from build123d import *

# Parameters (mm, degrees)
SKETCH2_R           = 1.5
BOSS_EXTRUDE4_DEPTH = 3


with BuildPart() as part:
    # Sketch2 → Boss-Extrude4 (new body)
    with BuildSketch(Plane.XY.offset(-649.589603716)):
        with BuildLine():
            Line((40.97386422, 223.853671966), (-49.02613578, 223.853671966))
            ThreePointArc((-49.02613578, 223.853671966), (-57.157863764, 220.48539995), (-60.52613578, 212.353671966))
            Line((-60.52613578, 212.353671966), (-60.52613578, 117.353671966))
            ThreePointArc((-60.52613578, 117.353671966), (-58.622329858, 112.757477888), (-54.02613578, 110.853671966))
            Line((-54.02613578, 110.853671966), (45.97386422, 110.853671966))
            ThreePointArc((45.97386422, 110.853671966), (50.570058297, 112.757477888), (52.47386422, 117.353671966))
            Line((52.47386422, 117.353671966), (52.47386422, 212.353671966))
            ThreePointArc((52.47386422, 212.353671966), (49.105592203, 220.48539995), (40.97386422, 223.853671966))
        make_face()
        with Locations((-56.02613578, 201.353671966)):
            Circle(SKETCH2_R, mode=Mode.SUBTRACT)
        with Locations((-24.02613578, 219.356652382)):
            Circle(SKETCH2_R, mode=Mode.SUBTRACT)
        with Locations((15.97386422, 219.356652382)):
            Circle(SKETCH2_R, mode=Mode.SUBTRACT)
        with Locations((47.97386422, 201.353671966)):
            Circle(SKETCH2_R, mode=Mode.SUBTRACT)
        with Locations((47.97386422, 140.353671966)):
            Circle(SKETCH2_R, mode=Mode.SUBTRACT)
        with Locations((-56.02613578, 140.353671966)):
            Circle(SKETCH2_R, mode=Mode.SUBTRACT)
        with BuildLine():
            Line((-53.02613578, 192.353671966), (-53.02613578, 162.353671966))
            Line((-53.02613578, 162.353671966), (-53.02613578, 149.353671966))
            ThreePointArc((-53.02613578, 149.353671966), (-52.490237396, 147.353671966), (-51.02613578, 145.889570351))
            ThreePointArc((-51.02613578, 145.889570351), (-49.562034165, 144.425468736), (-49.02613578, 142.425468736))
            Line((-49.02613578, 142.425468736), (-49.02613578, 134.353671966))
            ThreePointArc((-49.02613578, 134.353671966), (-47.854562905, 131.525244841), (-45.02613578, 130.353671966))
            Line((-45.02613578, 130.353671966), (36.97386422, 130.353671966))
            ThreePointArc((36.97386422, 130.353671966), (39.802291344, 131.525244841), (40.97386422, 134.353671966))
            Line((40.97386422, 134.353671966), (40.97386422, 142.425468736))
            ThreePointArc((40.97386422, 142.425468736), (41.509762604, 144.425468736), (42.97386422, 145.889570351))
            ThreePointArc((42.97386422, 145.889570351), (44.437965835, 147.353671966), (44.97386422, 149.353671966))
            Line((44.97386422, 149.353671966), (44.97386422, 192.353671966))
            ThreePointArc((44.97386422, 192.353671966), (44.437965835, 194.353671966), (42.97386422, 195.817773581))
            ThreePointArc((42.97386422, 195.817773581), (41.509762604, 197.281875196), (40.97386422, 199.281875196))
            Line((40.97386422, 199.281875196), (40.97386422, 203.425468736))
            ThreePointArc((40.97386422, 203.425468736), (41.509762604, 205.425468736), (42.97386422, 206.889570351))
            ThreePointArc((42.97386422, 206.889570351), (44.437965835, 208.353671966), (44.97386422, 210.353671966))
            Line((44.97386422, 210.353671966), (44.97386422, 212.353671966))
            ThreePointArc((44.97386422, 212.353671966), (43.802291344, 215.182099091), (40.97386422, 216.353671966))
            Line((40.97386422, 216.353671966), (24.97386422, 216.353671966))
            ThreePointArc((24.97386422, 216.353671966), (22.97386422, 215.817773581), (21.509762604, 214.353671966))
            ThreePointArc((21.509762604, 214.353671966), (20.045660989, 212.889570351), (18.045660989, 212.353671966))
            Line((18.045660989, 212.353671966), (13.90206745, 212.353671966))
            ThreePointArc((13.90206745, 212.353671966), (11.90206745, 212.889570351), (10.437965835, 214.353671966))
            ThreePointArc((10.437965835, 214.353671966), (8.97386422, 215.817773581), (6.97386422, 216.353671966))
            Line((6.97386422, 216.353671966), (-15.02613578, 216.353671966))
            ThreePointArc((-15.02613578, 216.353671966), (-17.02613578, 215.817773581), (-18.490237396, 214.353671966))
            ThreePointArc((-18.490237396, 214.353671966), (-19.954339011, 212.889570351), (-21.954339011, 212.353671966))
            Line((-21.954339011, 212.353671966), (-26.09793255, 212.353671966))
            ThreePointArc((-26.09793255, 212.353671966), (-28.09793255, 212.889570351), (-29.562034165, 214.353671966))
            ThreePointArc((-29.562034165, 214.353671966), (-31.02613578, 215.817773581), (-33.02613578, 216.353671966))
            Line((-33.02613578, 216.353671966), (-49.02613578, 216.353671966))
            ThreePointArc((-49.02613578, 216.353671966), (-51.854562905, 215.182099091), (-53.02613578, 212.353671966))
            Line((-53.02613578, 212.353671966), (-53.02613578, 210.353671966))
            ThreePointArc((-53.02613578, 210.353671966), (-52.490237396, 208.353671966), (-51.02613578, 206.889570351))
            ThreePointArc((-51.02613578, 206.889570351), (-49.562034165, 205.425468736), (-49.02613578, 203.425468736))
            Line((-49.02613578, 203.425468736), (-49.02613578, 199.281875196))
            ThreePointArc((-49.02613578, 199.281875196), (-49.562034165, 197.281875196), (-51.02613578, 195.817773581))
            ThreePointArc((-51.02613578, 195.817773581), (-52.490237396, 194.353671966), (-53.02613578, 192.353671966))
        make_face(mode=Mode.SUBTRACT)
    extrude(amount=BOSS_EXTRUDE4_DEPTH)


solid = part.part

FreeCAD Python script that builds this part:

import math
import FreeCAD as App
import Part
import Sketcher
from FreeCAD import Vector

doc = App.newDocument("Part")
body = doc.addObject("PartDesign::Body", "Body")

# Sketch on XY plane
sketch1 = doc.addObject("Sketcher::SketchObject", "Sketch")
body.addObject(sketch1)
sketch1.AttachmentSupport = (doc.XY_Plane, [""])
sketch1.MapMode = "FlatFace"
sketch1.AttachmentOffset = App.Placement(Vector(0, 0, -649.589604), App.Rotation())
sketch1.addGeometry(Part.LineSegment(Vector(41, 223.9, 0), Vector(-49, 223.9, 0)), False)
sketch1.addGeometry(Part.ArcOfCircle(Part.Circle(Vector(-49, 212.4, 0), Vector(0, 0, 1), 11.5), math.radians(90), math.radians(180)), False)
sketch1.addGeometry(Part.LineSegment(Vector(-60.5, 212.4, 0), Vector(-60.5, 117.4, 0)), False)
sketch1.addGeometry(Part.ArcOfCircle(Part.Circle(Vector(-54, 117.4, 0), Vector(0, 0, 1), 6.5), math.radians(180), math.radians(270)), False)
sketch1.addGeometry(Part.LineSegment(Vector(-54, 110.9, 0), Vector(46, 110.9, 0)), False)
sketch1.addGeometry(Part.ArcOfCircle(Part.Circle(Vector(46, 117.4, 0), Vector(0, 0, 1), 6.5), math.radians(-90), math.radians(0)), False)
sketch1.addGeometry(Part.LineSegment(Vector(52.5, 117.4, 0), Vector(52.5, 212.4, 0)), False)
sketch1.addGeometry(Part.ArcOfCircle(Part.Circle(Vector(41, 212.4, 0), Vector(0, 0, 1), 11.5), math.radians(0), math.radians(90)), False)
sketch1.addGeometry(Part.Circle(Vector(-56, 140.4, 0), Vector(0, 0, 1), 1.5), False)
sketch1.addGeometry(Part.LineSegment(Vector(-53, 149.4, 0), Vector(-53, 192.4, 0)), False)
sketch1.addGeometry(Part.ArcOfCircle(Part.Circle(Vector(-49, 192.4, 0), Vector(0, 0, 1), 4), math.radians(120), math.radians(180)), False)
sketch1.addGeometry(Part.ArcOfCircle(Part.Circle(Vector(-53, 199.3, 0), Vector(0, 0, 1), 4), math.radians(-60), math.radians(0)), False)
sketch1.addGeometry(Part.LineSegment(Vector(-49, 199.3, 0), Vector(-49, 203.4, 0)), False)
sketch1.addGeometry(Part.ArcOfCircle(Part.Circle(Vector(-53, 203.4, 0), Vector(0, 0, 1), 4), math.radians(0), math.radians(60)), False)
sketch1.addGeometry(Part.ArcOfCircle(Part.Circle(Vector(-49, 210.4, 0), Vector(0, 0, 1), 4), math.radians(180), math.radians(240)), False)
sketch1.addGeometry(Part.LineSegment(Vector(-53, 210.4, 0), Vector(-53, 212.4, 0)), False)
sketch1.addGeometry(Part.ArcOfCircle(Part.Circle(Vector(-49, 212.4, 0), Vector(0, 0, 1), 4), math.radians(90), math.radians(180)), False)
sketch1.addGeometry(Part.LineSegment(Vector(-49, 216.4, 0), Vector(-33, 216.4, 0)), False)
sketch1.addGeometry(Part.ArcOfCircle(Part.Circle(Vector(-33, 212.4, 0), Vector(0, 0, 1), 4), math.radians(30), math.radians(90)), False)
sketch1.addGeometry(Part.ArcOfCircle(Part.Circle(Vector(-26.1, 216.4, 0), Vector(0, 0, 1), 4), math.radians(-150), math.radians(-90)), False)
sketch1.addGeometry(Part.LineSegment(Vector(-26.1, 212.4, 0), Vector(-22, 212.4, 0)), False)
sketch1.addGeometry(Part.ArcOfCircle(Part.Circle(Vector(-22, 216.4, 0), Vector(0, 0, 1), 4), math.radians(-90), math.radians(-30)), False)
sketch1.addGeometry(Part.ArcOfCircle(Part.Circle(Vector(-15, 212.4, 0), Vector(0, 0, 1), 4), math.radians(90), math.radians(150)), False)
sketch1.addGeometry(Part.LineSegment(Vector(-15, 216.4, 0), Vector(7, 216.4, 0)), False)
sketch1.addGeometry(Part.ArcOfCircle(Part.Circle(Vector(7, 212.4, 0), Vector(0, 0, 1), 4), math.radians(30), math.radians(90)), False)
sketch1.addGeometry(Part.ArcOfCircle(Part.Circle(Vector(13.9, 216.4, 0), Vector(0, 0, 1), 4), math.radians(-150), math.radians(-90)), False)
sketch1.addGeometry(Part.LineSegment(Vector(13.9, 212.4, 0), Vector(18, 212.4, 0)), False)
sketch1.addGeometry(Part.ArcOfCircle(Part.Circle(Vector(18, 216.4, 0), Vector(0, 0, 1), 4), math.radians(-90), math.radians(-30)), False)
sketch1.addGeometry(Part.ArcOfCircle(Part.Circle(Vector(25, 212.4, 0), Vector(0, 0, 1), 4), math.radians(90), math.radians(150)), False)
sketch1.addGeometry(Part.LineSegment(Vector(25, 216.4, 0), Vector(41, 216.4, 0)), False)
sketch1.addGeometry(Part.ArcOfCircle(Part.Circle(Vector(41, 212.4, 0), Vector(0, 0, 1), 4), math.radians(0), math.radians(90)), False)
sketch1.addGeometry(Part.LineSegment(Vector(45, 212.4, 0), Vector(45, 210.4, 0)), False)
sketch1.addGeometry(Part.ArcOfCircle(Part.Circle(Vector(41, 210.4, 0), Vector(0, 0, 1), 4), math.radians(-60), math.radians(0)), False)
sketch1.addGeometry(Part.ArcOfCircle(Part.Circle(Vector(45, 203.4, 0), Vector(0, 0, 1), 4), math.radians(120), math.radians(180)), False)
sketch1.addGeometry(Part.LineSegment(Vector(41, 203.4, 0), Vector(41, 199.3, 0)), False)
sketch1.addGeometry(Part.ArcOfCircle(Part.Circle(Vector(45, 199.3, 0), Vector(0, 0, 1), 4), math.radians(180), math.radians(240)), False)
sketch1.addGeometry(Part.ArcOfCircle(Part.Circle(Vector(41, 192.4, 0), Vector(0, 0, 1), 4), math.radians(0), math.radians(60)), False)
sketch1.addGeometry(Part.LineSegment(Vector(45, 192.4, 0), Vector(45, 149.4, 0)), False)
sketch1.addGeometry(Part.ArcOfCircle(Part.Circle(Vector(41, 149.4, 0), Vector(0, 0, 1), 4), math.radians(-60), math.radians(0)), False)
sketch1.addGeometry(Part.ArcOfCircle(Part.Circle(Vector(45, 142.4, 0), Vector(0, 0, 1), 4), math.radians(120), math.radians(180)), False)
sketch1.addGeometry(Part.LineSegment(Vector(41, 142.4, 0), Vector(41, 134.4, 0)), False)
sketch1.addGeometry(Part.ArcOfCircle(Part.Circle(Vector(37, 134.4, 0), Vector(0, 0, 1), 4), math.radians(-90), math.radians(0)), False)
sketch1.addGeometry(Part.LineSegment(Vector(37, 130.4, 0), Vector(-45, 130.4, 0)), False)
sketch1.addGeometry(Part.ArcOfCircle(Part.Circle(Vector(-45, 134.4, 0), Vector(0, 0, 1), 4), math.radians(180), math.radians(270)), False)
sketch1.addGeometry(Part.LineSegment(Vector(-49, 134.4, 0), Vector(-49, 142.4, 0)), False)
sketch1.addGeometry(Part.ArcOfCircle(Part.Circle(Vector(-53, 142.4, 0), Vector(0, 0, 1), 4), math.radians(0), math.radians(60)), False)
sketch1.addGeometry(Part.ArcOfCircle(Part.Circle(Vector(-49, 149.4, 0), Vector(0, 0, 1), 4), math.radians(180), math.radians(240)), False)
sketch1.addGeometry(Part.Circle(Vector(48, 140.4, 0), Vector(0, 0, 1), 1.5), False)
sketch1.addGeometry(Part.Circle(Vector(-56, 201.4, 0), Vector(0, 0, 1), 1.5), False)
sketch1.addGeometry(Part.Circle(Vector(-24, 219.4, 0), Vector(0, 0, 1), 1.5), False)
sketch1.addGeometry(Part.Circle(Vector(16, 219.4, 0), Vector(0, 0, 1), 1.5), False)
sketch1.addGeometry(Part.Circle(Vector(48, 201.4, 0), Vector(0, 0, 1), 1.5), False)
sketch1.addConstraint(Sketcher.Constraint("Tangent", 0, 2, 1, 1))
sketch1.addConstraint(Sketcher.Constraint("Tangent", 1, 2, 2, 1))
sketch1.addConstraint(Sketcher.Constraint("Tangent", 2, 2, 3, 1))
sketch1.addConstraint(Sketcher.Constraint("Tangent", 3, 2, 4, 1))
sketch1.addConstraint(Sketcher.Constraint("Tangent", 4, 2, 5, 1))
sketch1.addConstraint(Sketcher.Constraint("Tangent", 5, 2, 6, 1))
sketch1.addConstraint(Sketcher.Constraint("Tangent", 6, 2, 7, 1))
sketch1.addConstraint(Sketcher.Constraint("Tangent", 7, 2, 0, 1))
sketch1.addConstraint(Sketcher.Constraint("Tangent", 9, 2, 10, 2))
sketch1.addConstraint(Sketcher.Constraint("Tangent", 10, 1, 11, 1))
sketch1.addConstraint(Sketcher.Constraint("Tangent", 11, 2, 12, 1))
sketch1.addConstraint(Sketcher.Constraint("Tangent", 12, 2, 13, 1))
sketch1.addConstraint(Sketcher.Constraint("Tangent", 13, 2, 14, 2))
sketch1.addConstraint(Sketcher.Constraint("Tangent", 14, 1, 15, 1))
sketch1.addConstraint(Sketcher.Constraint("Tangent", 15, 2, 16, 2))
sketch1.addConstraint(Sketcher.Constraint("Tangent", 16, 1, 17, 1))
sketch1.addConstraint(Sketcher.Constraint("Tangent", 17, 2, 18, 2))
sketch1.addConstraint(Sketcher.Constraint("Tangent", 18, 1, 19, 1))
sketch1.addConstraint(Sketcher.Constraint("Tangent", 19, 2, 20, 1))
sketch1.addConstraint(Sketcher.Constraint("Tangent", 20, 2, 21, 1))
sketch1.addConstraint(Sketcher.Constraint("Tangent", 21, 2, 22, 2))
sketch1.addConstraint(Sketcher.Constraint("Tangent", 22, 1, 23, 1))
sketch1.addConstraint(Sketcher.Constraint("Tangent", 23, 2, 24, 2))
sketch1.addConstraint(Sketcher.Constraint("Tangent", 24, 1, 25, 1))
sketch1.addConstraint(Sketcher.Constraint("Tangent", 25, 2, 26, 1))
sketch1.addConstraint(Sketcher.Constraint("Tangent", 26, 2, 27, 1))
sketch1.addConstraint(Sketcher.Constraint("Tangent", 27, 2, 28, 2))
sketch1.addConstraint(Sketcher.Constraint("Tangent", 28, 1, 29, 1))
sketch1.addConstraint(Sketcher.Constraint("Tangent", 29, 2, 30, 2))
sketch1.addConstraint(Sketcher.Constraint("Tangent", 30, 1, 31, 1))
sketch1.addConstraint(Sketcher.Constraint("Tangent", 31, 2, 32, 2))
sketch1.addConstraint(Sketcher.Constraint("Tangent", 32, 1, 33, 1))
sketch1.addConstraint(Sketcher.Constraint("Tangent", 33, 2, 34, 1))
sketch1.addConstraint(Sketcher.Constraint("Tangent", 34, 2, 35, 1))
sketch1.addConstraint(Sketcher.Constraint("Tangent", 35, 2, 36, 2))
sketch1.addConstraint(Sketcher.Constraint("Tangent", 36, 1, 37, 1))
sketch1.addConstraint(Sketcher.Constraint("Tangent", 37, 2, 38, 2))
sketch1.addConstraint(Sketcher.Constraint("Tangent", 38, 1, 39, 1))
sketch1.addConstraint(Sketcher.Constraint("Tangent", 39, 2, 40, 1))
sketch1.addConstraint(Sketcher.Constraint("Tangent", 40, 2, 41, 2))
sketch1.addConstraint(Sketcher.Constraint("Tangent", 41, 1, 42, 1))
sketch1.addConstraint(Sketcher.Constraint("Tangent", 42, 2, 43, 2))
sketch1.addConstraint(Sketcher.Constraint("Tangent", 43, 1, 44, 1))
sketch1.addConstraint(Sketcher.Constraint("Tangent", 44, 2, 45, 1))
sketch1.addConstraint(Sketcher.Constraint("Tangent", 45, 2, 46, 2))
sketch1.addConstraint(Sketcher.Constraint("Tangent", 46, 1, 9, 1))
sketch1.addConstraint(Sketcher.Constraint("Horizontal", 0))
sketch1.addConstraint(Sketcher.Constraint("Vertical", 2))
sketch1.addConstraint(Sketcher.Constraint("Horizontal", 4))
sketch1.addConstraint(Sketcher.Constraint("Vertical", 6))
sketch1.addConstraint(Sketcher.Constraint("Vertical", 9))
sketch1.addConstraint(Sketcher.Constraint("Vertical", 12))
sketch1.addConstraint(Sketcher.Constraint("Vertical", 15))
sketch1.addConstraint(Sketcher.Constraint("Horizontal", 17))
sketch1.addConstraint(Sketcher.Constraint("Horizontal", 20))
sketch1.addConstraint(Sketcher.Constraint("Horizontal", 23))
sketch1.addConstraint(Sketcher.Constraint("Horizontal", 26))
sketch1.addConstraint(Sketcher.Constraint("Horizontal", 29))
sketch1.addConstraint(Sketcher.Constraint("Vertical", 31))
sketch1.addConstraint(Sketcher.Constraint("Vertical", 34))
sketch1.addConstraint(Sketcher.Constraint("Vertical", 37))
sketch1.addConstraint(Sketcher.Constraint("Vertical", 40))
sketch1.addConstraint(Sketcher.Constraint("Horizontal", 42))
sketch1.addConstraint(Sketcher.Constraint("Vertical", 44))
sketch1.addConstraint(Sketcher.Constraint("Coincident", 16, 3, 1, 3))
sketch1.addConstraint(Sketcher.Constraint("Coincident", 30, 3, 7, 3))
sketch1.addConstraint(Sketcher.Constraint("Equal", 3, 5))
sketch1.addConstraint(Sketcher.Constraint("Equal", 1, 7))
sketch1.addConstraint(Sketcher.Constraint("Equal", 10, 11))
sketch1.addConstraint(Sketcher.Constraint("Equal", 11, 13))
sketch1.addConstraint(Sketcher.Constraint("Equal", 13, 14))
sketch1.addConstraint(Sketcher.Constraint("Equal", 14, 16))
sketch1.addConstraint(Sketcher.Constraint("Equal", 16, 18))
sketch1.addConstraint(Sketcher.Constraint("Equal", 18, 19))
sketch1.addConstraint(Sketcher.Constraint("Equal", 19, 21))
sketch1.addConstraint(Sketcher.Constraint("Equal", 21, 22))
sketch1.addConstraint(Sketcher.Constraint("Equal", 22, 24))
sketch1.addConstraint(Sketcher.Constraint("Equal", 24, 25))
sketch1.addConstraint(Sketcher.Constraint("Equal", 25, 27))
sketch1.addConstraint(Sketcher.Constraint("Equal", 27, 28))
sketch1.addConstraint(Sketcher.Constraint("Equal", 28, 30))
sketch1.addConstraint(Sketcher.Constraint("Equal", 30, 32))
sketch1.addConstraint(Sketcher.Constraint("Equal", 32, 33))
sketch1.addConstraint(Sketcher.Constraint("Equal", 33, 35))
sketch1.addConstraint(Sketcher.Constraint("Equal", 35, 36))
sketch1.addConstraint(Sketcher.Constraint("Equal", 36, 38))
sketch1.addConstraint(Sketcher.Constraint("Equal", 38, 39))
sketch1.addConstraint(Sketcher.Constraint("Equal", 39, 41))
sketch1.addConstraint(Sketcher.Constraint("Equal", 41, 43))
sketch1.addConstraint(Sketcher.Constraint("Equal", 43, 45))
sketch1.addConstraint(Sketcher.Constraint("Equal", 45, 46))
sketch1.addConstraint(Sketcher.Constraint("Equal", 8, 47))
sketch1.addConstraint(Sketcher.Constraint("Equal", 47, 48))
sketch1.addConstraint(Sketcher.Constraint("Equal", 48, 49))
sketch1.addConstraint(Sketcher.Constraint("Equal", 49, 50))
sketch1.addConstraint(Sketcher.Constraint("Equal", 50, 51))
sketch1.addConstraint(Sketcher.Constraint("Horizontal", 18, 3, 22, 3))
sketch1.addConstraint(Sketcher.Constraint("Horizontal", 21, 3, 25, 3))
sketch1.addConstraint(Sketcher.Constraint("Horizontal", 14, 3, 32, 3))
sketch1.addConstraint(Sketcher.Constraint("Horizontal", 13, 3, 33, 3))
sketch1.addConstraint(Sketcher.Constraint("Horizontal", 11, 3, 35, 3))
sketch1.addConstraint(Sketcher.Constraint("Horizontal", 10, 3, 36, 3))
sketch1.addConstraint(Sketcher.Constraint("Horizontal", 39, 3, 45, 3))
sketch1.addConstraint(Sketcher.Constraint("Horizontal", 38, 3, 46, 3))
sketch1.addConstraint(Sketcher.Constraint("Horizontal", 8, 3, 47, 3))
sketch1.addConstraint(Sketcher.Constraint("Horizontal", 49, 3, 50, 3))
sketch1.addConstraint(Sketcher.Constraint("Horizontal", 48, 3, 51, 3))
sketch1.addConstraint(Sketcher.Constraint("Horizontal", 27, 3, 16, 1))
sketch1.addConstraint(Sketcher.Constraint("Vertical", 1, 3, 10, 3))
sketch1.addConstraint(Sketcher.Constraint("Vertical", 35, 3, 39, 3))
sketch1.addConstraint(Sketcher.Constraint("Vertical", 8, 3, 48, 3))
sketch1.addConstraint(Sketcher.Constraint("Vertical", 47, 3, 51, 3))
sketch1.addConstraint(Sketcher.Constraint("Vertical", 45, 3, 9, 2))
sketch1.addConstraint(Sketcher.Constraint("Equal", 20, 26))
sketch1.addConstraint(Sketcher.Constraint("Equal", 17, 29))
sketch1.addConstraint(Sketcher.Constraint("Equal", 26, 12))
sketch1.addConstraint(Sketcher.Constraint("Diameter", 8, 3.0))
sketch1.addConstraint(Sketcher.Constraint("Radius", 10, 4.0))
sketch1.addConstraint(Sketcher.Constraint("Radius", 1, 11.5))
sketch1.addConstraint(Sketcher.Constraint("Radius", 3, 6.5))
sketch1.addConstraint(Sketcher.Constraint("DistanceX", 0, 2, 0, 1, 90.0))
sketch1.addConstraint(Sketcher.Constraint("DistanceX", 17, 1, 17, 2, 16.0))
sketch1.addConstraint(Sketcher.Constraint("DistanceX", 23, 1, 23, 2, 22.0))
sketch1.addConstraint(Sketcher.Constraint("DistanceY", 2, 2, 2, 1, 95.0))
sketch1.addConstraint(Sketcher.Constraint("DistanceY", 9, 1, 9, 2, 43.0))
sketch1.addConstraint(Sketcher.Constraint("DistanceY", 15, 1, 15, 2, 2.0))
sketch1.addConstraint(Sketcher.Constraint("DistanceY", 40, 2, 40, 1, 8.071797))
sketch1.addConstraint(Sketcher.Constraint("DistanceY", -1, 1, 1, 3, 212.353672))
sketch1.addConstraint(Sketcher.Constraint("DistanceY", -1, 1, 8, 3, 140.353672))
sketch1.addConstraint(Sketcher.Constraint("DistanceX", 21, 3, -1, 1, 21.954339))
sketch1.addConstraint(Sketcher.Constraint("DistanceY", -1, 1, 48, 3, 201.353672))
sketch1.addConstraint(Sketcher.Constraint("DistanceX", 8, 3, -1, 1, 56.026136))
sketch1.addConstraint(Sketcher.Constraint("DistanceX", -1, 1, 47, 3, 47.973864))
sketch1.addConstraint(Sketcher.Constraint("DistanceX", 49, 3, -1, 1, 24.026136))
sketch1.addConstraint(Sketcher.Constraint("DistanceY", -1, 1, 49, 3, 219.356652))
sketch1.addConstraint(Sketcher.Constraint("DistanceX", -1, 1, 50, 3, 15.973864))
pad1 = doc.addObject("PartDesign::Pad", "Pad")
body.addObject(pad1)
pad1.Profile = sketch1
pad1.Length = 3

doc.recompute()
